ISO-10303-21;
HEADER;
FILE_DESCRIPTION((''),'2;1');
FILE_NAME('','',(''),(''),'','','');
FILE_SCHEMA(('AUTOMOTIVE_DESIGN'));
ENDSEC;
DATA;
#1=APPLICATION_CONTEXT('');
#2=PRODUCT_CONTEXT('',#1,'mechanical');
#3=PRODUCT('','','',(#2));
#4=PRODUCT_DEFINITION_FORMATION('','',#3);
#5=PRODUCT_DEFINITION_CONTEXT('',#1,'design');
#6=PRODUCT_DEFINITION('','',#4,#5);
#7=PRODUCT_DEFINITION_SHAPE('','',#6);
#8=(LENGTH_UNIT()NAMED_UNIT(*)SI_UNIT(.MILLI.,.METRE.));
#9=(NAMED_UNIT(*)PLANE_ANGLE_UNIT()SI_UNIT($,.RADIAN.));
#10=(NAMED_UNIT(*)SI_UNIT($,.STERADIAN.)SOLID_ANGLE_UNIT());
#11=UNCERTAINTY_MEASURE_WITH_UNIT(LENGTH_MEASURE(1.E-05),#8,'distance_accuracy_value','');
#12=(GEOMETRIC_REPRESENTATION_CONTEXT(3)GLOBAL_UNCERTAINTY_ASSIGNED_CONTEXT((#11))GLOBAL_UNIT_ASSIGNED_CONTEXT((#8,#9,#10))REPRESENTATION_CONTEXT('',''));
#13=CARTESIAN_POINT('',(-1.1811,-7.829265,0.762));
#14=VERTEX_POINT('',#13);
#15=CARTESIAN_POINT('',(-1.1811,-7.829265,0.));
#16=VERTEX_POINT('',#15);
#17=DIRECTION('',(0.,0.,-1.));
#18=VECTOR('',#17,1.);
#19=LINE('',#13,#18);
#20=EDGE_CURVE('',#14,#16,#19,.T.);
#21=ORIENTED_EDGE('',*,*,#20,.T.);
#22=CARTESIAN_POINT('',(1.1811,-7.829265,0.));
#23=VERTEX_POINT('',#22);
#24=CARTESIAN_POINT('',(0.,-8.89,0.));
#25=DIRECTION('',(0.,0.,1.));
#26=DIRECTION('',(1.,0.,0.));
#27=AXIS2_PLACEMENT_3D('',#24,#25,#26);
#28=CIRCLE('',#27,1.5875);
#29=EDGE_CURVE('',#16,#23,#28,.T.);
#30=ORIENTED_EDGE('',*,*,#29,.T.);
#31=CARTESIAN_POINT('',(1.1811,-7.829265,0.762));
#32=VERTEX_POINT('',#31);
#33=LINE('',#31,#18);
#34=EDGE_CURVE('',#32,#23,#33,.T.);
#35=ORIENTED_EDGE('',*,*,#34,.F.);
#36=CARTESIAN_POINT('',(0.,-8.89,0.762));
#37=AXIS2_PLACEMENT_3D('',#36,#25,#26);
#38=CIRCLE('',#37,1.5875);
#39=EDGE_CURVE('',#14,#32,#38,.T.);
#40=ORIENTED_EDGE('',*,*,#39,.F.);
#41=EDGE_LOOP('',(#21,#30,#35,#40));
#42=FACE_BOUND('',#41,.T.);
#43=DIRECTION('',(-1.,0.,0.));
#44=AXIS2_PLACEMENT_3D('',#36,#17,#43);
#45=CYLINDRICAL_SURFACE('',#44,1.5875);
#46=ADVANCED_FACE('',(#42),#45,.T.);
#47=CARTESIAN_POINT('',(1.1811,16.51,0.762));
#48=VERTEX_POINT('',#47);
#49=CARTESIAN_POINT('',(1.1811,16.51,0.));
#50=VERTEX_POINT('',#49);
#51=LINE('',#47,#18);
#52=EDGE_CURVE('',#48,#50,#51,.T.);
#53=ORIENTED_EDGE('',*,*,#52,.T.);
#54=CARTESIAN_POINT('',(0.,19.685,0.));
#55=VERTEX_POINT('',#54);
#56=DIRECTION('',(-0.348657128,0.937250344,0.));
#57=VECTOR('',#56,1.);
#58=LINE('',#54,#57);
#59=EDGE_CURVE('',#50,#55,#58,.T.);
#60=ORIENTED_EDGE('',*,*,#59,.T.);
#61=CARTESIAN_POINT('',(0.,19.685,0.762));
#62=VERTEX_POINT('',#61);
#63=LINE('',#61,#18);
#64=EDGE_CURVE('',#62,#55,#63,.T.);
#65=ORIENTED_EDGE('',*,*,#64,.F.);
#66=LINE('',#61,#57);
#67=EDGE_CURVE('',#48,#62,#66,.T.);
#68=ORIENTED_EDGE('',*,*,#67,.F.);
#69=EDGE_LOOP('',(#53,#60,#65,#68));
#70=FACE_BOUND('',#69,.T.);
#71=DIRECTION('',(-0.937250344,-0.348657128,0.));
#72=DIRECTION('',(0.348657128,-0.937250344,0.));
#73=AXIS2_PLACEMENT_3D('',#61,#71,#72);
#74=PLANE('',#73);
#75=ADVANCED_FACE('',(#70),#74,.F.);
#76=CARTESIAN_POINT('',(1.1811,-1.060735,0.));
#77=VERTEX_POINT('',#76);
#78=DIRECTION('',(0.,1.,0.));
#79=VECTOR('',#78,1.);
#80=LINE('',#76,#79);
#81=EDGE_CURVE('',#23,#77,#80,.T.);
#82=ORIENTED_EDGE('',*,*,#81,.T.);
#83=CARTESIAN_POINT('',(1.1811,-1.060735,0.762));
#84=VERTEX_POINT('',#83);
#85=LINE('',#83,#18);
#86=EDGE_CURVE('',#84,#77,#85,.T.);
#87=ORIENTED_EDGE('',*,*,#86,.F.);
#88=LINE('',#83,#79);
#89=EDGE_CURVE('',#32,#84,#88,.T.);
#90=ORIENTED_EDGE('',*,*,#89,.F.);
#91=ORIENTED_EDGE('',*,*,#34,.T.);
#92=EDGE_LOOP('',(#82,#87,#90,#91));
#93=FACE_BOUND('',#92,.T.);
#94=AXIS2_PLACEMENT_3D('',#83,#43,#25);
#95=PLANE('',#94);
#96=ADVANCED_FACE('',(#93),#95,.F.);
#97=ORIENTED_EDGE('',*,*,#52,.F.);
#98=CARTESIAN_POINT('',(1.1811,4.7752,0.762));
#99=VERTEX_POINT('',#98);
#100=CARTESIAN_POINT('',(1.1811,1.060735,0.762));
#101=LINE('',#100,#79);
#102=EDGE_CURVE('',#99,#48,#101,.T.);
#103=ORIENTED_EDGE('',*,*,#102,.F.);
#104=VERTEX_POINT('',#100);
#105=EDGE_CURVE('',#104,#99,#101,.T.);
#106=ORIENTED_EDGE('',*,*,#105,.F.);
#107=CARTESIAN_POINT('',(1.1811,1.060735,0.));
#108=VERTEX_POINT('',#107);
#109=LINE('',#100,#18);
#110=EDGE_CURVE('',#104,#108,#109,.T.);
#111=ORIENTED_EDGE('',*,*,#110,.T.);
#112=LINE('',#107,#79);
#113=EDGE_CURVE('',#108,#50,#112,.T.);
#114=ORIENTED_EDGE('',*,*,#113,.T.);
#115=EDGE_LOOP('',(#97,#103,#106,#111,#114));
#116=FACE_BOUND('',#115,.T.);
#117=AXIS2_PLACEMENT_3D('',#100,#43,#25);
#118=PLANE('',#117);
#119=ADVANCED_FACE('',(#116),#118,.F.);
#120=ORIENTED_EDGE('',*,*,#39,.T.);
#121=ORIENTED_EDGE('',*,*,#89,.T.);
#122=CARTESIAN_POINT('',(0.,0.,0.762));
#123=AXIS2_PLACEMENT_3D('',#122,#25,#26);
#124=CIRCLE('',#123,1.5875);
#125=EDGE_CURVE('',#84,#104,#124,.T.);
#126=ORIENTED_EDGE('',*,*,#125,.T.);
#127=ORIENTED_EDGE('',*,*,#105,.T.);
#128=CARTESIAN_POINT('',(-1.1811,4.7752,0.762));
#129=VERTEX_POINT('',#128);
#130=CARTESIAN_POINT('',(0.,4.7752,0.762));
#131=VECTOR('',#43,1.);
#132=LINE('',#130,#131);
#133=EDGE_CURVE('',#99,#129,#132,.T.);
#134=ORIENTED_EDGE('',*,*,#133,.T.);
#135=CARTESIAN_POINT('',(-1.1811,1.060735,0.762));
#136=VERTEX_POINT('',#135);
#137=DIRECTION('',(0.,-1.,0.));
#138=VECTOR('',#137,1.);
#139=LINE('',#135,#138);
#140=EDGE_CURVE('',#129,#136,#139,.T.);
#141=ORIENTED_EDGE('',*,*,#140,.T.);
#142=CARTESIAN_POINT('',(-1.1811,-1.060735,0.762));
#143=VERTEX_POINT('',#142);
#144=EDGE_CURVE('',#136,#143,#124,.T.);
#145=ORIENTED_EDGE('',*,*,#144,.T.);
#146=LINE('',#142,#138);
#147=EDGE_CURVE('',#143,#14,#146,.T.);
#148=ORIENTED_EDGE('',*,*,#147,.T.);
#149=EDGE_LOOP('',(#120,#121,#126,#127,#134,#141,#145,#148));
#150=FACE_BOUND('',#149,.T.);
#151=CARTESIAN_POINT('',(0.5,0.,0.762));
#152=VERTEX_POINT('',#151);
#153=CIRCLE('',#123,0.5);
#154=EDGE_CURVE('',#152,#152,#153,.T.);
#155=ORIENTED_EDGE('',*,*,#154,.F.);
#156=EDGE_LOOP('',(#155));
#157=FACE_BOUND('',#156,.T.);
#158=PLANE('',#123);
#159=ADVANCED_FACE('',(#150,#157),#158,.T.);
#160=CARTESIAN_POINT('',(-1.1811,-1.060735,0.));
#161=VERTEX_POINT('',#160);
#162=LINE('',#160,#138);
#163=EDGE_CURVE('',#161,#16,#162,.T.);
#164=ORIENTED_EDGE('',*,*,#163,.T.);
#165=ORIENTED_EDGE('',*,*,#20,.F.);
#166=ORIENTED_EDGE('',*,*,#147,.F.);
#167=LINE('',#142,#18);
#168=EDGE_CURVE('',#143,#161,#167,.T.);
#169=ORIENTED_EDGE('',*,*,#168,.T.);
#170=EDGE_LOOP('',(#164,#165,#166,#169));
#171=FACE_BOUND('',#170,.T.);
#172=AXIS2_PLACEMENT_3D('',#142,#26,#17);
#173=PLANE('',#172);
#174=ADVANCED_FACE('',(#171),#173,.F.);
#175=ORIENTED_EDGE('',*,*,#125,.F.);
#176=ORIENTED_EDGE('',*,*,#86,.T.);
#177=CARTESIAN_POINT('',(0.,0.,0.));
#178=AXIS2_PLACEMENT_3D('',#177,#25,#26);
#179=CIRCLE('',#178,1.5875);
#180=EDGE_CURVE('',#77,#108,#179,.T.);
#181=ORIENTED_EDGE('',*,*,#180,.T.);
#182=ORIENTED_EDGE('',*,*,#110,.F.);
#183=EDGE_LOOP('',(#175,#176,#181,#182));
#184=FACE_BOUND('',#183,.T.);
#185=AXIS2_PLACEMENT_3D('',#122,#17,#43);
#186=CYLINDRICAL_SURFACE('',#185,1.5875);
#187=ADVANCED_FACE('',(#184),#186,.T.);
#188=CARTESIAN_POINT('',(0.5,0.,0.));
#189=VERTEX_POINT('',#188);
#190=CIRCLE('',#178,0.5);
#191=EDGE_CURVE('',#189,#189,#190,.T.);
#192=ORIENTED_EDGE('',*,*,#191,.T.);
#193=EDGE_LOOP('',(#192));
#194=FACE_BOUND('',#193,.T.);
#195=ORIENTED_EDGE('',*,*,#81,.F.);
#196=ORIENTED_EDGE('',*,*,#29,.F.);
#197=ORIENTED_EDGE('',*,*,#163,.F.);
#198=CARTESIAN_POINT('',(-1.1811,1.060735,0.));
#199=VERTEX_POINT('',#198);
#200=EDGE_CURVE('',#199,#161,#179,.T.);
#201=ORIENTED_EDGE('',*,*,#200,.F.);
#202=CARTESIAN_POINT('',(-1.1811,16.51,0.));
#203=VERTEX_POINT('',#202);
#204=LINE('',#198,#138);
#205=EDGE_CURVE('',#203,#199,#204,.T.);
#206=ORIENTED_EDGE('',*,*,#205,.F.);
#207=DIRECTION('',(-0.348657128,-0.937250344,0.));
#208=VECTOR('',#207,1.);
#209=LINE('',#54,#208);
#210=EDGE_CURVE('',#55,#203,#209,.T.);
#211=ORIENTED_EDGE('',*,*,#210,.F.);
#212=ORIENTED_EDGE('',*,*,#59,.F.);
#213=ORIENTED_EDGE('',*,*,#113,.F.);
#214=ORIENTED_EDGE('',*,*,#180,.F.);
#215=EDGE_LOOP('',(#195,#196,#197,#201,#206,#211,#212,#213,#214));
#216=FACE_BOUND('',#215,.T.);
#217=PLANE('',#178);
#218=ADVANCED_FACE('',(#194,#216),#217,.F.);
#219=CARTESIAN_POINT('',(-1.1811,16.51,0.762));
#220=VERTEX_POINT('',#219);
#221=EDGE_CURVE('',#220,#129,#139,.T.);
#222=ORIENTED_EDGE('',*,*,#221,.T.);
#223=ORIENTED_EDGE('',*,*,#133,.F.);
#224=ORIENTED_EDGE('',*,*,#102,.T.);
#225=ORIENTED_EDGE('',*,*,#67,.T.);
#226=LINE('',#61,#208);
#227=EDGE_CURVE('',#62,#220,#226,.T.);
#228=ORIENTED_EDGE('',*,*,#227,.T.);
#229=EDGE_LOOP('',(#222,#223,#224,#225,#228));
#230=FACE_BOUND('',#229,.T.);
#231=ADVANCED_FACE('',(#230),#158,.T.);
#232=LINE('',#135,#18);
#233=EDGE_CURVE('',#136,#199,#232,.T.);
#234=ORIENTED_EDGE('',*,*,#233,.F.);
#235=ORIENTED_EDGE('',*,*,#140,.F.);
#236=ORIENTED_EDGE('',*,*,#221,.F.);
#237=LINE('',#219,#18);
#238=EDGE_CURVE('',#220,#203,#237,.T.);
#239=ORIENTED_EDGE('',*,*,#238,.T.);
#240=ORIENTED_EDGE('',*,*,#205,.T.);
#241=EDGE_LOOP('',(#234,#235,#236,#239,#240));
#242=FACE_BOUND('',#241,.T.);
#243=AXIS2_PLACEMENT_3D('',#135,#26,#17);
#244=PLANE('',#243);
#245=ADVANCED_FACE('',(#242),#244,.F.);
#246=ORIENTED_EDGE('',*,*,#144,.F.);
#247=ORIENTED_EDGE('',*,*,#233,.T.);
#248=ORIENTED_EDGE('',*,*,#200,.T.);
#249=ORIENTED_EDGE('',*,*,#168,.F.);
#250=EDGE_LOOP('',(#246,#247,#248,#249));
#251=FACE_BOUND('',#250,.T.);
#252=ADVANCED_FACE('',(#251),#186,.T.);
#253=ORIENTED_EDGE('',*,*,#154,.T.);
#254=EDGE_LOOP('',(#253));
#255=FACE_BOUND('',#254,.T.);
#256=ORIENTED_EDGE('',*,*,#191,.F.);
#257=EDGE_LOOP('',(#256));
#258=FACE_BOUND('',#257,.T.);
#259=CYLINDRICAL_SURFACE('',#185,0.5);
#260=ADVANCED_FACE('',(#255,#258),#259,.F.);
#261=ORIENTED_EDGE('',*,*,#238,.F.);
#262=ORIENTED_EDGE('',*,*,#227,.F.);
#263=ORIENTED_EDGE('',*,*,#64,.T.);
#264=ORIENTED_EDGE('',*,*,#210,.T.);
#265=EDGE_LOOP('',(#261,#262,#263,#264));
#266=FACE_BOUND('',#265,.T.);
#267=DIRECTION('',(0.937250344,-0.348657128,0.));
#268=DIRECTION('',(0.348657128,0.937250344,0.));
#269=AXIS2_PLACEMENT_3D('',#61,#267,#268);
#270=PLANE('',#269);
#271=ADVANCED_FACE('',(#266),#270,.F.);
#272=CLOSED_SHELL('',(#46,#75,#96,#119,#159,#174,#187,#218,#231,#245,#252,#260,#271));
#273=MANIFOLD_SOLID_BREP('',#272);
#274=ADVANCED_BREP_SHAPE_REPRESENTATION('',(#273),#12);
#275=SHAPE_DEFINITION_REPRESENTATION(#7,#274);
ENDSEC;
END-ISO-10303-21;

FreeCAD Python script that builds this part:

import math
import FreeCAD as App
import Part
import Sketcher
Q = App.Units.Quantity

doc = App.newDocument("Part")
body = doc.addObject("PartDesign::Body", "Body")

# Sketch on XY plane
sketch1 = body.newObject("Sketcher::SketchObject", "Sketch")
sketch1.AttachmentSupport = (doc.getObject("XY_Plane"), [""])
sketch1.MapMode = "FlatFace"
sketch1.addGeometry([
    Part.LineSegment(App.Vector(-1.1811, -1.060735, 0), App.Vector(-1.1811, -7.829265, 0)),  # 0
    Part.ArcOfCircle(Part.Circle(App.Vector(0, -8.89, 0), App.Vector(0, 0, 1), 1.5875), math.radians(138.073278), math.radians(401.926722)),  # 1
    Part.LineSegment(App.Vector(1.1811, -7.829265, 0), App.Vector(1.1811, -1.060735, 0)),  # 2
    Part.ArcOfCircle(Part.Circle(App.Vector(0, 0, 0), App.Vector(0, 0, 1), 1.5875), math.radians(-41.926722), math.radians(41.926722)),  # 3
    Part.LineSegment(App.Vector(1.1811, 1.060735, 0), App.Vector(1.1811, 16.51, 0)),  # 4
    Part.LineSegment(App.Vector(1.1811, 16.51, 0), App.Vector(0, 19.685, 0)),  # 5
    Part.LineSegment(App.Vector(0, 19.685, 0), App.Vector(-1.1811, 16.51, 0)),  # 6
    Part.LineSegment(App.Vector(-1.1811, 16.51, 0), App.Vector(-1.1811, 1.060735, 0)),  # 7
    Part.ArcOfCircle(Part.Circle(App.Vector(0, 0, 0), App.Vector(0, 0, 1), 1.5875), math.radians(138.073278), math.radians(221.926722)),  # 8
    Part.Circle(App.Vector(0, 0, 0), App.Vector(0, 0, 1), 0.5),  # 9
], False)
sketch1.addConstraint([
    Sketcher.Constraint("Coincident", 0, 2, 1, 1),
    Sketcher.Constraint("Coincident", 1, 2, 2, 1),
    Sketcher.Constraint("Coincident", 2, 2, 3, 1),
    Sketcher.Constraint("Coincident", 3, 2, 4, 1),
    Sketcher.Constraint("Coincident", 4, 2, 5, 1),
    Sketcher.Constraint("Coincident", 5, 2, 6, 1),
    Sketcher.Constraint("Coincident", 6, 2, 7, 1),
    Sketcher.Constraint("Coincident", 7, 2, 8, 1),
    Sketcher.Constraint("Coincident", 8, 2, 0, 1),
    Sketcher.Constraint("Vertical", 0),
    Sketcher.Constraint("Vertical", 2),
    Sketcher.Constraint("Vertical", 4),
    Sketcher.Constraint("Vertical", 7),
    Sketcher.Constraint("Coincident", 3, 3, -1, 1),
    Sketcher.Constraint("Coincident", 8, 3, -1, 1),
    Sketcher.Constraint("Coincident", 9, 3, -1, 1),
    Sketcher.Constraint("Equal", 1, 3),
    Sketcher.Constraint("Equal", 3, 8),
    Sketcher.Constraint("Symmetric", 0, 2, 1, 2, -2),
    Sketcher.Constraint("Symmetric", 4, 2, 6, 2, -2),
    Sketcher.Constraint("PointOnObject", 5, 2, -2),
    Sketcher.Constraint("Vertical", 2, 2, 3, 2),
    Sketcher.Constraint("Radius", 1, Q("0.0625 in")),
    Sketcher.Constraint("Diameter", 9, 1.0),
    Sketcher.Constraint("DistanceY", 1, 3, -1, 1, Q("0.35 in")),
    Sketcher.Constraint("DistanceY", -1, 1, 4, 2, Q("0.65 in")),
    Sketcher.Constraint("DistanceY", -1, 1, 5, 2, Q("0.775 in")),
    Sketcher.Constraint("DistanceX", 0, 2, 1, 2, Q("0.093 in")),
])
pad1 = body.newObject("PartDesign::Pad", "Pad")
pad1.Profile = sketch1
pad1.Length = Q("0.03 in")

doc.recompute()
